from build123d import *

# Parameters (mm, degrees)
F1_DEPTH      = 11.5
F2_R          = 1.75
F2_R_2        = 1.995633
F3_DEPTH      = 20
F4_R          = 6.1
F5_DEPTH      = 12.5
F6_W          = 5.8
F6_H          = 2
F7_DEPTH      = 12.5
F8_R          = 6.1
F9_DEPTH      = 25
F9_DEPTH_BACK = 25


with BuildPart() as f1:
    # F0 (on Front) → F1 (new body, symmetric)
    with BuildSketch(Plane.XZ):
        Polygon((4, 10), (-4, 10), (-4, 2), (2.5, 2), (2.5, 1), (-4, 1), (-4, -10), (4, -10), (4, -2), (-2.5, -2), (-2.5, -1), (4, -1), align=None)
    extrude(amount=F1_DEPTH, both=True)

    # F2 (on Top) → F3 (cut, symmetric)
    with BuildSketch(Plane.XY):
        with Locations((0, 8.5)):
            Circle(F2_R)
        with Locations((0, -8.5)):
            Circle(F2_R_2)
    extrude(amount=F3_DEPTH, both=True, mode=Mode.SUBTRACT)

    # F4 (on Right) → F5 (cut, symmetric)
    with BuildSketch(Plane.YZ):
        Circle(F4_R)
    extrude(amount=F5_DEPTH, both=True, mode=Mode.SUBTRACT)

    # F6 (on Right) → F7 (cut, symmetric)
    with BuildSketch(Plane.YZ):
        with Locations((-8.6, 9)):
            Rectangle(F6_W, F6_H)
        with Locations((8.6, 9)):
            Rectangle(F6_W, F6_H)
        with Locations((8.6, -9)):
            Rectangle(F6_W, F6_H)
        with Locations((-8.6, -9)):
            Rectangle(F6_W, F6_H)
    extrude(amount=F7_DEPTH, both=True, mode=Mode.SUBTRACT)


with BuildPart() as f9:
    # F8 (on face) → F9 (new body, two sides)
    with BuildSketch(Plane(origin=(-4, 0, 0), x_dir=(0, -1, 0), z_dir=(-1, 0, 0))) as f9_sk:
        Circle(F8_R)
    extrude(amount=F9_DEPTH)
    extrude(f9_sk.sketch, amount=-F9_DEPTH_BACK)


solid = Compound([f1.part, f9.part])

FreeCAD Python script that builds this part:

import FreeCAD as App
import Part
import Sketcher

V = App.Vector


def add_polygon(sketch, points):
    """Adds a closed chain of lines whose ends are joined by coincident constraints."""
    first, n = sketch.GeometryCount, len(points)
    for a, b in zip(points, points[1:] + points[:1]):
        sketch.addGeometry(Part.LineSegment(App.Vector(*a, 0), App.Vector(*b, 0)), False)
    for i in range(n):
        sketch.addConstraint(Sketcher.Constraint("Coincident", first + i, 2, first + (i + 1) % n, 1))

doc = App.newDocument("Part")
body = doc.addObject("PartDesign::Body", "Body")

sketch1 = body.newObject("Sketcher::SketchObject", "Sketch")
sketch1.AttachmentSupport = (doc.getObject("XZ_Plane"), [""])
sketch1.MapMode = "FlatFace"
add_polygon(sketch1, [(4, 10), (-4, 10), (-4, 2), (2.5, 2), (2.5, 1), (-4, 1), (-4, -10), (4, -10), (4, -2), (-2.5, -2), (-2.5, -1), (4, -1)])
sketch1.addConstraint([
    Sketcher.Constraint("Horizontal", 0),
    Sketcher.Constraint("Vertical", 1),
    Sketcher.Constraint("Horizontal", 2),
    Sketcher.Constraint("Vertical", 3),
    Sketcher.Constraint("Horizontal", 4),
    Sketcher.Constraint("Vertical", 5),
    Sketcher.Constraint("Horizontal", 6),
    Sketcher.Constraint("Vertical", 7),
    Sketcher.Constraint("Horizontal", 8),
    Sketcher.Constraint("Vertical", 9),
    Sketcher.Constraint("Horizontal", 10),
    Sketcher.Constraint("Vertical", 11),
    Sketcher.Constraint("Symmetric", 0, 2, 6, 2, -1, 1),
    Sketcher.Constraint("Symmetric", 2, 2, 8, 2, -1, 1),
    Sketcher.Constraint("Symmetric", 4, 2, 10, 2, -1, 1),
    Sketcher.Constraint("Vertical", 1, 2, 4, 2),
    Sketcher.Constraint("Equal", 6, 1),
    Sketcher.Constraint("DistanceX", 0, 2, 0, 1, 8.0),
    Sketcher.Constraint("DistanceY", 3, 2, 3, 1, 1.0),
    Sketcher.Constraint("DistanceY", 5, 2, 5, 1, 11.0),
    Sketcher.Constraint("DistanceX", 2, 1, 2, 2, 6.5),
])
pad1 = body.newObject("PartDesign::Pad", "Pad")
pad1.Profile = sketch1
pad1.Length = 23
pad1.Midplane = True

sketch2 = body.newObject("Sketcher::SketchObject", "Sketch001")
sketch2.AttachmentSupport = (doc.getObject("XY_Plane"), [""])
sketch2.MapMode = "FlatFace"
sketch2.addGeometry([
    Part.Circle(V(0, 8.5, 0), V(0, 0, 1), 1.8),
    Part.Circle(V(0, -8.5, 0), V(0, 0, 1), 2),
], False)
sketch2.addConstraint([
    Sketcher.Constraint("Symmetric", 0, 3, 1, 3, -1, 1),
    Sketcher.Constraint("PointOnObject", 0, 3, -2),
    Sketcher.Constraint("Diameter", 0, 3.5),
    Sketcher.Constraint("DistanceY", 1, 3, 0, 3, 17.0),
    Sketcher.Constraint("Diameter", 1, 3.991266),
])
pocket1 = body.newObject("PartDesign::Pocket", "Pocket")
pocket1.Profile = sketch2
pocket1.Length = 40
pocket1.Midplane = True

sketch3 = body.newObject("Sketcher::SketchObject", "Sketch002")
sketch3.AttachmentSupport = (doc.getObject("YZ_Plane"), [""])
sketch3.MapMode = "FlatFace"
sketch3.addGeometry(Part.Circle(V(0, 0, 0), V(0, 0, 1), 6), False)
sketch3.addConstraint([
    Sketcher.Constraint("Coincident", 0, 3, -1, 1),
    Sketcher.Constraint("Diameter", 0, 12.2),
])
pocket2 = body.newObject("PartDesign::Pocket", "Pocket001")
pocket2.Profile = sketch3
pocket2.Length = 25
pocket2.Midplane = True

sketch4 = body.newObject("Sketcher::SketchObject", "Sketch003")
sketch4.AttachmentSupport = (doc.getObject("YZ_Plane"), [""])
sketch4.MapMode = "FlatFace"
add_polygon(sketch4, [(-11.5, 10), (-11.5, 8), (-5.7, 8), (-5.7, 10)])
add_polygon(sketch4, [(5.7, 10), (5.7, 8), (11.5, 8), (11.5, 10)])
add_polygon(sketch4, [(5.7, -8), (5.7, -10), (11.5, -10), (11.5, -8)])
add_polygon(sketch4, [(-11.5, -8), (-11.5, -10), (-5.7, -10), (-5.7, -8)])
sketch4.addConstraint([
    Sketcher.Constraint("Vertical", 0),
    Sketcher.Constraint("Horizontal", 1),
    Sketcher.Constraint("Vertical", 2),
    Sketcher.Constraint("Horizontal", 3),
    Sketcher.Constraint("Vertical", 4),
    Sketcher.Constraint("Horizontal", 5),
    Sketcher.Constraint("Vertical", 6),
    Sketcher.Constraint("Horizontal", 7),
    Sketcher.Constraint("Vertical", 8),
    Sketcher.Constraint("Horizontal", 9),
    Sketcher.Constraint("Vertical", 10),
    Sketcher.Constraint("Horizontal", 11),
    Sketcher.Constraint("Vertical", 12),
    Sketcher.Constraint("Horizontal", 13),
    Sketcher.Constraint("Vertical", 14),
    Sketcher.Constraint("Horizontal", 15),
    Sketcher.Constraint("Symmetric", 2, 2, 8, 2, -1, 1),
    Sketcher.Constraint("Symmetric", 0, 2, 10, 2, -1, 1),
    Sketcher.Constraint("Symmetric", 6, 2, 12, 2, -1, 1),
    Sketcher.Constraint("Symmetric", 4, 2, 14, 2, -1, 1),
    Sketcher.Constraint("Symmetric", 1, 2, 4, 2, -2),
    Sketcher.Constraint("Symmetric", 3, 2, 6, 2, -2),
    Sketcher.Constraint("DistanceY", 0, 2, 0, 1, 2.0),
    Sketcher.Constraint("DistanceX", 1, 1, 1, 2, 5.8),
    Sketcher.Constraint("DistanceY", -1, 1, 0, 2, 8.0),
    Sketcher.Constraint("DistanceX", 0, 2, 5, 2, 23.0),
])
pocket3 = body.newObject("PartDesign::Pocket", "Pocket002")
pocket3.Profile = sketch4
pocket3.Length = 25
pocket3.Midplane = True
body2 = doc.addObject("PartDesign::Body", "Body001")

sketch5 = body2.newObject("Sketcher::SketchObject", "Sketch004")
sketch5.AttachmentSupport = (doc.getObject("YZ_Plane001"), [""])
sketch5.MapMode = "FlatFace"
sketch5.AttachmentOffset = App.Placement(V(0, 0, -4), App.Rotation())
sketch5.addGeometry(Part.Circle(V(0, 0, 0), V(0, 0, 1), 6), False)
sketch5.addConstraint([
    Sketcher.Constraint("Coincident", 0, 3, -1, 1),
    Sketcher.Constraint("Diameter", 0, 12.2),
])
pad2 = body2.newObject("PartDesign::Pad", "Pad001")
pad2.Profile = sketch5
pad2.Type = "TwoLengths"
pad2.Length = 25
pad2.Length2 = 25
pad2.Reversed = True

doc.recompute()
